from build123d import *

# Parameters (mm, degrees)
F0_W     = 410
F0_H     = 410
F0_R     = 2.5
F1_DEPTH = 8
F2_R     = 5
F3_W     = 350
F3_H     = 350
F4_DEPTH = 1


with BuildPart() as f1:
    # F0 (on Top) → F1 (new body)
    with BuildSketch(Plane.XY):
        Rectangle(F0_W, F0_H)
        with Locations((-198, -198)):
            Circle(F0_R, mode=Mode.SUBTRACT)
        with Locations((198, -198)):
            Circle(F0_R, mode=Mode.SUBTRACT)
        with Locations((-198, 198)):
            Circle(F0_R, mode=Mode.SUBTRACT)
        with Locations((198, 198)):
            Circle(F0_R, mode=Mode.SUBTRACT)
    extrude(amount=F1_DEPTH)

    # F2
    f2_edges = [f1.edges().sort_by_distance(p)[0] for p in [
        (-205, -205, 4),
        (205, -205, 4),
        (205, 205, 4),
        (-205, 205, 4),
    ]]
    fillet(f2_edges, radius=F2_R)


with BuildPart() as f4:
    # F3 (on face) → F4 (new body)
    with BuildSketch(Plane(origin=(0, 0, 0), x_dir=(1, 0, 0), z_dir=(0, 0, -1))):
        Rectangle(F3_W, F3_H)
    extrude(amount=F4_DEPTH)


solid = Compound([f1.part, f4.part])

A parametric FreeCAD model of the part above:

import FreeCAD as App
import Part
import Sketcher
from FreeCAD import Vector
Q = App.Units.Quantity


def edges_at(feature, points):
    """Names of the edges that pass closest to the given points."""
    edges = feature.Shape.Edges
    near = lambda p: min(range(len(edges)), key=lambda i: edges[i].distToShape(Part.Vertex(*p))[0])
    return sorted({f"Edge{near(p) + 1}" for p in points})


def add_polygon(sketch, points):
    """Adds a closed chain of lines whose ends are joined by coincident constraints."""
    first, n = sketch.GeometryCount, len(points)
    for a, b in zip(points, points[1:] + points[:1]):
        sketch.addGeometry(Part.LineSegment(App.Vector(*a, 0), App.Vector(*b, 0)), False)
    for i in range(n):
        sketch.addConstraint(Sketcher.Constraint("Coincident", first + i, 2, first + (i + 1) % n, 1))

doc = App.newDocument("Part")
body = doc.addObject("PartDesign::Body", "Body")

# Sketch on XY plane
sketch1 = doc.addObject("Sketcher::SketchObject", "Sketch")
body.addObject(sketch1)
sketch1.AttachmentSupport = (doc.XY_Plane, [""])
sketch1.MapMode = "FlatFace"
add_polygon(sketch1, [(-205, 205), (-205, -205), (205, -205), (205, 205)])  # lines 0-3
sketch1.addGeometry(Part.Circle(Vector(-198, -198, 0), Vector(0, 0, 1), 2.5), False)  # 4
sketch1.addGeometry(Part.Circle(Vector(198, -198, 0), Vector(0, 0, 1), 2.5), False)  # 5
sketch1.addGeometry(Part.Circle(Vector(-198, 198, 0), Vector(0, 0, 1), 2.5), False)  # 6
sketch1.addGeometry(Part.Circle(Vector(198, 198, 0), Vector(0, 0, 1), 2.5), False)  # 7
sketch1.addConstraint([
    Sketcher.Constraint("Vertical", 0),
    Sketcher.Constraint("Horizontal", 1),
    Sketcher.Constraint("Vertical", 2),
    Sketcher.Constraint("Horizontal", 3),
    Sketcher.Constraint("Equal", 4, 5),
    Sketcher.Constraint("Equal", 5, 6),
    Sketcher.Constraint("Equal", 6, 7),
    Sketcher.Constraint("Symmetric", 5, 3, 6, 3, -1, 1),
    Sketcher.Constraint("Symmetric", 4, 3, 7, 3, -1, 1),
    Sketcher.Constraint("Symmetric", 0, 2, 2, 2, -1, 1),
    Sketcher.Constraint("Symmetric", 4, 3, 5, 3, -2),
    Sketcher.Constraint("Equal", 3, 0),
    Sketcher.Constraint("Diameter", 4, Q("5 mm")),
    Sketcher.Constraint("DistanceX", 1, 1, 1, 2, Q("410 mm")),
    Sketcher.Constraint("DistanceX", 4, 3, -1, 1, Q("198 mm")),
    Sketcher.Constraint("DistanceY", 4, 3, -1, 1, Q("198 mm")),
])
pad1 = doc.addObject("PartDesign::Pad", "Pad")
body.addObject(pad1)
pad1.Profile = sketch1
pad1.Length = 8
doc.recompute()

fillet = doc.addObject("PartDesign::Fillet", "Fillet")
body.addObject(fillet)
fillet.Base = (pad1, edges_at(pad1, [
    (-205, -205, 4),
    (205, -205, 4),
    (205, 205, 4),
    (-205, 205, 4),
]))
fillet.Radius = 5
body2 = doc.addObject("PartDesign::Body", "Body001")

# Sketch on XY plane
sketch2 = doc.addObject("Sketcher::SketchObject", "Sketch001")
body2.addObject(sketch2)
sketch2.AttachmentSupport = (doc.getObject("XY_Plane001"), [""])
sketch2.MapMode = "FlatFace"
add_polygon(sketch2, [(-175, -175), (-175, 175), (175, 175), (175, -175)])  # lines 0-3
sketch2.addConstraint([
    Sketcher.Constraint("Vertical", 0),
    Sketcher.Constraint("Horizontal", 1),
    Sketcher.Constraint("Vertical", 2),
    Sketcher.Constraint("Horizontal", 3),
    Sketcher.Constraint("Symmetric", 0, 2, 2, 2, -1, 1),
    Sketcher.Constraint("Equal", 3, 0),
    Sketcher.Constraint("DistanceX", 1, 1, 1, 2, Q("350 mm")),
])
pad2 = doc.addObject("PartDesign::Pad", "Pad001")
body2.addObject(pad2)
pad2.Profile = sketch2
pad2.Length = 1
pad2.Reversed = True

doc.recompute()
